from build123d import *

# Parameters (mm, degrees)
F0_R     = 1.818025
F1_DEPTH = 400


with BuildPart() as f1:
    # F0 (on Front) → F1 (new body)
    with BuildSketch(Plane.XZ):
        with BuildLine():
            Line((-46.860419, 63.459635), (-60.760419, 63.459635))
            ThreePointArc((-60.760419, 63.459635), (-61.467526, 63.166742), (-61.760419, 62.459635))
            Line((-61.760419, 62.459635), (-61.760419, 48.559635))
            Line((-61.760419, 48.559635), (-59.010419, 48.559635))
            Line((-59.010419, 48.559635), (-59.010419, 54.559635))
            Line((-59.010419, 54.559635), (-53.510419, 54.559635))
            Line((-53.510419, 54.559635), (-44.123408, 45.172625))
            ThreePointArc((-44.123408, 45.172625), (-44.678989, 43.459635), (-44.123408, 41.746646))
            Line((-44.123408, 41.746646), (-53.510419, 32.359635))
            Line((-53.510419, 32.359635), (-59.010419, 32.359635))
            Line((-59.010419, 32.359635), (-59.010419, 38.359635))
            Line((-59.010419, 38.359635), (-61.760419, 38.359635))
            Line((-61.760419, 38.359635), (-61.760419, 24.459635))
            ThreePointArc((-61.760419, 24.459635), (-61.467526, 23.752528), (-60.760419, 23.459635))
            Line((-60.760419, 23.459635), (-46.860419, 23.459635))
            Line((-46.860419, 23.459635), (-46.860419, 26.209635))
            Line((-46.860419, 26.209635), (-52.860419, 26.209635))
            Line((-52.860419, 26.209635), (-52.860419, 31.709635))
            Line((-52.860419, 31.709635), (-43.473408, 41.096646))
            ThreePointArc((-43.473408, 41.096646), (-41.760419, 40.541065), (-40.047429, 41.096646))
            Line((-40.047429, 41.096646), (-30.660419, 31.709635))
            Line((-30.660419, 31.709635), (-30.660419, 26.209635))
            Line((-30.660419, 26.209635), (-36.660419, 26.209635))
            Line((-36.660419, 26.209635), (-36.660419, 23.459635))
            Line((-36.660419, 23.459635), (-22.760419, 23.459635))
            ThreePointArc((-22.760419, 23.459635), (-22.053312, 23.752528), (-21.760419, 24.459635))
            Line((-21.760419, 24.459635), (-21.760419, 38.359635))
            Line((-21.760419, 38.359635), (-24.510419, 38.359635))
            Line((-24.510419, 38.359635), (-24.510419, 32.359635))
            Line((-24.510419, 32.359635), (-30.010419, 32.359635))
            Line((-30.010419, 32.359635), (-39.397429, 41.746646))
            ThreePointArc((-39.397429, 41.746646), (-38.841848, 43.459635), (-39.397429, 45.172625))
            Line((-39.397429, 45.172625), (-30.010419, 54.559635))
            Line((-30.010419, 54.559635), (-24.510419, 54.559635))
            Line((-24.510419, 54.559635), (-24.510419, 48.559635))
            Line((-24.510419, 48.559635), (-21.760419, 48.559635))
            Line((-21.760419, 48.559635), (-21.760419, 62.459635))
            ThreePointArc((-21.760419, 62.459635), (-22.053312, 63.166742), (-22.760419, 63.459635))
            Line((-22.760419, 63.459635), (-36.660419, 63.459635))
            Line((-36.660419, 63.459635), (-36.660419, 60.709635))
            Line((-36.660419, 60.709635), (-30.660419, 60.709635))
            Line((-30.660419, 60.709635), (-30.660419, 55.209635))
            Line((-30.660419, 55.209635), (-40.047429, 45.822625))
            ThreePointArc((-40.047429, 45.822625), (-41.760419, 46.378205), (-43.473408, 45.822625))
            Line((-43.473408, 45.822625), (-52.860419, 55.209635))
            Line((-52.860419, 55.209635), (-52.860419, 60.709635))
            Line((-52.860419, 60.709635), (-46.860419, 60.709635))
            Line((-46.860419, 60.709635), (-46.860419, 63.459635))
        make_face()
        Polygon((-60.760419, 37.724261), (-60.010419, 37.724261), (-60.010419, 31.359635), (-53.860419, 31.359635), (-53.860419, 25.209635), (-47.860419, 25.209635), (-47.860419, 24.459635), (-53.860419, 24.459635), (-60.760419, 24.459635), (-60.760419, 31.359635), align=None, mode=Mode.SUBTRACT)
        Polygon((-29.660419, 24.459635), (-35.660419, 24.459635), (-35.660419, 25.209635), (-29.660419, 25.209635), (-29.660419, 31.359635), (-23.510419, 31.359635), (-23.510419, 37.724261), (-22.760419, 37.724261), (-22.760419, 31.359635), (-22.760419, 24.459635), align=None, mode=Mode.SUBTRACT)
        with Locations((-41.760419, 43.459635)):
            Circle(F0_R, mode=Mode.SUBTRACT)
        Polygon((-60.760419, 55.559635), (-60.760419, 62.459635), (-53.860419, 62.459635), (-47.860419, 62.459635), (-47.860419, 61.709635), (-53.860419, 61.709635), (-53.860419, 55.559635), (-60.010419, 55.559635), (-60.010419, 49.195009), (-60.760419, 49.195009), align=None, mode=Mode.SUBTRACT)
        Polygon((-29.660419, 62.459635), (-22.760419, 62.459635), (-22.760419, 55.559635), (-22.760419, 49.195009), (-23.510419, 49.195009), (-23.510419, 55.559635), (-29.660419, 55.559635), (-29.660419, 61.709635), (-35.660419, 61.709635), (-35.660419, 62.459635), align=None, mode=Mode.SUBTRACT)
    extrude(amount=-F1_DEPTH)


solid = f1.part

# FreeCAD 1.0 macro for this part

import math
import FreeCAD as App
import Part
import Sketcher

V = App.Vector
Q = App.Units.Quantity

doc = App.newDocument("Part")
body = doc.addObject("PartDesign::Body", "Body")

sketch1 = doc.addObject("Sketcher::SketchObject", "Sketch")
body.addObject(sketch1)
sketch1.AttachmentSupport = (doc.XZ_Plane, [""])
sketch1.MapMode = "FlatFace"
sketch1.addGeometry([
    Part.LineSegment(V(-46.9, 63.5, 0), V(-60.8, 63.5, 0)),
    Part.ArcOfCircle(Part.Circle(V(-60.8, 62.5, 0), V(0, 0, 1), 1), math.radians(90), math.radians(180)),
    Part.LineSegment(V(-61.8, 62.5, 0), V(-61.8, 48.6, 0)),
    Part.LineSegment(V(-61.8, 48.6, 0), V(-59, 48.6, 0)),
    Part.LineSegment(V(-59, 48.6, 0), V(-59, 54.6, 0)),
    Part.LineSegment(V(-59, 54.6, 0), V(-53.5, 54.6, 0)),
    Part.LineSegment(V(-53.5, 54.6, 0), V(-44.1, 45.2, 0)),
    Part.ArcOfCircle(Part.Circle(V(-41.8, 43.5, 0), V(0, 0, 1), 2.9), math.radians(144), math.radians(216)),
    Part.LineSegment(V(-44.1, 41.7, 0), V(-53.5, 32.4, 0)),
    Part.LineSegment(V(-53.5, 32.4, 0), V(-59, 32.4, 0)),
    Part.LineSegment(V(-59, 32.4, 0), V(-59, 38.4, 0)),
    Part.LineSegment(V(-59, 38.4, 0), V(-61.8, 38.4, 0)),
    Part.LineSegment(V(-61.8, 38.4, 0), V(-61.8, 24.5, 0)),
    Part.ArcOfCircle(Part.Circle(V(-60.8, 24.5, 0), V(0, 0, 1), 1), math.radians(180), math.radians(270)),
    Part.LineSegment(V(-60.8, 23.5, 0), V(-46.9, 23.5, 0)),
    Part.LineSegment(V(-46.9, 23.5, 0), V(-46.9, 26.2, 0)),
    Part.LineSegment(V(-46.9, 26.2, 0), V(-52.9, 26.2, 0)),
    Part.LineSegment(V(-52.9, 26.2, 0), V(-52.9, 31.7, 0)),
    Part.LineSegment(V(-52.9, 31.7, 0), V(-43.5, 41.1, 0)),
    Part.ArcOfCircle(Part.Circle(V(-41.8, 43.5, 0), V(0, 0, 1), 2.9), math.radians(-126), math.radians(-54)),
    Part.LineSegment(V(-40, 41.1, 0), V(-30.7, 31.7, 0)),
    Part.LineSegment(V(-30.7, 31.7, 0), V(-30.7, 26.2, 0)),
    Part.LineSegment(V(-30.7, 26.2, 0), V(-36.7, 26.2, 0)),
    Part.LineSegment(V(-36.7, 26.2, 0), V(-36.7, 23.5, 0)),
    Part.LineSegment(V(-36.7, 23.5, 0), V(-22.8, 23.5, 0)),
    Part.ArcOfCircle(Part.Circle(V(-22.8, 24.5, 0), V(0, 0, 1), 1), math.radians(-90), math.radians(0)),
    Part.LineSegment(V(-21.8, 24.5, 0), V(-21.8, 38.4, 0)),
    Part.LineSegment(V(-21.8, 38.4, 0), V(-24.5, 38.4, 0)),
    Part.LineSegment(V(-24.5, 38.4, 0), V(-24.5, 32.4, 0)),
    Part.LineSegment(V(-24.5, 32.4, 0), V(-30, 32.4, 0)),
    Part.LineSegment(V(-30, 32.4, 0), V(-39.4, 41.7, 0)),
    Part.ArcOfCircle(Part.Circle(V(-41.8, 43.5, 0), V(0, 0, 1), 2.9), math.radians(-36), math.radians(36)),
    Part.LineSegment(V(-39.4, 45.2, 0), V(-30, 54.6, 0)),
    Part.LineSegment(V(-30, 54.6, 0), V(-24.5, 54.6, 0)),
    Part.LineSegment(V(-24.5, 54.6, 0), V(-24.5, 48.6, 0)),
    Part.LineSegment(V(-24.5, 48.6, 0), V(-21.8, 48.6, 0)),
    Part.LineSegment(V(-21.8, 48.6, 0), V(-21.8, 62.5, 0)),
    Part.ArcOfCircle(Part.Circle(V(-22.8, 62.5, 0), V(0, 0, 1), 1), math.radians(0), math.radians(90)),
    Part.LineSegment(V(-22.8, 63.5, 0), V(-36.7, 63.5, 0)),
    Part.LineSegment(V(-36.7, 63.5, 0), V(-36.7, 60.7, 0)),
    Part.LineSegment(V(-36.7, 60.7, 0), V(-30.7, 60.7, 0)),
    Part.LineSegment(V(-30.7, 60.7, 0), V(-30.7, 55.2, 0)),
    Part.LineSegment(V(-30.7, 55.2, 0), V(-40, 45.8, 0)),
    Part.ArcOfCircle(Part.Circle(V(-41.8, 43.5, 0), V(0, 0, 1), 2.9), math.radians(54), math.radians(126)),
    Part.LineSegment(V(-43.5, 45.8, 0), V(-52.9, 55.2, 0)),
    Part.LineSegment(V(-52.9, 55.2, 0), V(-52.9, 60.7, 0)),
    Part.LineSegment(V(-52.9, 60.7, 0), V(-46.9, 60.7, 0)),
    Part.LineSegment(V(-46.9, 60.7, 0), V(-46.9, 63.5, 0)),
    Part.LineSegment(V(-60.8, 24.5, 0), V(-60.8, 37.7, 0)),
    Part.LineSegment(V(-60.8, 37.7, 0), V(-60, 37.7, 0)),
    Part.LineSegment(V(-60, 37.7, 0), V(-60, 31.4, 0)),
    Part.LineSegment(V(-60, 31.4, 0), V(-53.9, 31.4, 0)),
    Part.LineSegment(V(-53.9, 31.4, 0), V(-53.9, 25.2, 0)),
    Part.LineSegment(V(-53.9, 25.2, 0), V(-47.9, 25.2, 0)),
    Part.LineSegment(V(-47.9, 25.2, 0), V(-47.9, 24.5, 0)),
    Part.LineSegment(V(-47.9, 24.5, 0), V(-60.8, 24.5, 0)),
    Part.LineSegment(V(-22.8, 24.5, 0), V(-35.7, 24.5, 0)),
    Part.LineSegment(V(-35.7, 24.5, 0), V(-35.7, 25.2, 0)),
    Part.LineSegment(V(-35.7, 25.2, 0), V(-29.7, 25.2, 0)),
    Part.LineSegment(V(-29.7, 25.2, 0), V(-29.7, 31.4, 0)),
    Part.LineSegment(V(-29.7, 31.4, 0), V(-23.5, 31.4, 0)),
    Part.LineSegment(V(-23.5, 31.4, 0), V(-23.5, 37.7, 0)),
    Part.LineSegment(V(-23.5, 37.7, 0), V(-22.8, 37.7, 0)),
    Part.LineSegment(V(-22.8, 37.7, 0), V(-22.8, 24.5, 0)),
    Part.LineSegment(V(-60.8, 49.2, 0), V(-60.8, 62.5, 0)),
    Part.LineSegment(V(-60.8, 62.5, 0), V(-47.9, 62.5, 0)),
    Part.LineSegment(V(-47.9, 62.5, 0), V(-47.9, 61.7, 0)),
    Part.LineSegment(V(-47.9, 61.7, 0), V(-53.9, 61.7, 0)),
    Part.LineSegment(V(-53.9, 61.7, 0), V(-53.9, 55.6, 0)),
    Part.LineSegment(V(-53.9, 55.6, 0), V(-60, 55.6, 0)),
    Part.LineSegment(V(-60, 55.6, 0), V(-60, 49.2, 0)),
    Part.LineSegment(V(-60, 49.2, 0), V(-60.8, 49.2, 0)),
    Part.Circle(V(-41.8, 43.5, 0), V(0, 0, 1), 1.8),
    Part.LineSegment(V(-35.7, 62.5, 0), V(-22.8, 62.5, 0)),
    Part.LineSegment(V(-22.8, 62.5, 0), V(-22.8, 49.2, 0)),
    Part.LineSegment(V(-22.8, 49.2, 0), V(-23.5, 49.2, 0)),
    Part.LineSegment(V(-23.5, 49.2, 0), V(-23.5, 55.6, 0)),
    Part.LineSegment(V(-23.5, 55.6, 0), V(-29.7, 55.6, 0)),
    Part.LineSegment(V(-29.7, 55.6, 0), V(-29.7, 61.7, 0)),
    Part.LineSegment(V(-29.7, 61.7, 0), V(-35.7, 61.7, 0)),
    Part.LineSegment(V(-35.7, 61.7, 0), V(-35.7, 62.5, 0)),
], False)
sketch1.addConstraint([
    Sketcher.Constraint("Tangent", 0, 2, 1, 1),
    Sketcher.Constraint("Tangent", 1, 2, 2, 1),
    Sketcher.Constraint("Coincident", 2, 2, 3, 1),
    Sketcher.Constraint("Coincident", 3, 2, 4, 1),
    Sketcher.Constraint("Coincident", 4, 2, 5, 1),
    Sketcher.Constraint("Coincident", 5, 2, 6, 1),
    Sketcher.Constraint("Coincident", 6, 2, 7, 1),
    Sketcher.Constraint("Coincident", 7, 2, 8, 1),
    Sketcher.Constraint("Coincident", 8, 2, 9, 1),
    Sketcher.Constraint("Coincident", 9, 2, 10, 1),
    Sketcher.Constraint("Coincident", 10, 2, 11, 1),
    Sketcher.Constraint("Coincident", 11, 2, 12, 1),
    Sketcher.Constraint("Tangent", 12, 2, 13, 1),
    Sketcher.Constraint("Tangent", 13, 2, 14, 1),
    Sketcher.Constraint("Coincident", 14, 2, 15, 1),
    Sketcher.Constraint("Coincident", 15, 2, 16, 1),
    Sketcher.Constraint("Coincident", 16, 2, 17, 1),
    Sketcher.Constraint("Coincident", 17, 2, 18, 1),
    Sketcher.Constraint("Coincident", 18, 2, 19, 1),
    Sketcher.Constraint("Coincident", 19, 2, 20, 1),
    Sketcher.Constraint("Coincident", 20, 2, 21, 1),
    Sketcher.Constraint("Coincident", 21, 2, 22, 1),
    Sketcher.Constraint("Coincident", 22, 2, 23, 1),
    Sketcher.Constraint("Coincident", 23, 2, 24, 1),
    Sketcher.Constraint("Tangent", 24, 2, 25, 1),
    Sketcher.Constraint("Tangent", 25, 2, 26, 1),
    Sketcher.Constraint("Coincident", 26, 2, 27, 1),
    Sketcher.Constraint("Coincident", 27, 2, 28, 1),
    Sketcher.Constraint("Coincident", 28, 2, 29, 1),
    Sketcher.Constraint("Coincident", 29, 2, 30, 1),
    Sketcher.Constraint("Coincident", 30, 2, 31, 1),
    Sketcher.Constraint("Coincident", 31, 2, 32, 1),
    Sketcher.Constraint("Coincident", 32, 2, 33, 1),
    Sketcher.Constraint("Coincident", 33, 2, 34, 1),
    Sketcher.Constraint("Coincident", 34, 2, 35, 1),
    Sketcher.Constraint("Coincident", 35, 2, 36, 1),
    Sketcher.Constraint("Tangent", 36, 2, 37, 1),
    Sketcher.Constraint("Tangent", 37, 2, 38, 1),
    Sketcher.Constraint("Coincident", 38, 2, 39, 1),
    Sketcher.Constraint("Coincident", 39, 2, 40, 1),
    Sketcher.Constraint("Coincident", 40, 2, 41, 1),
    Sketcher.Constraint("Coincident", 41, 2, 42, 1),
    Sketcher.Constraint("Coincident", 42, 2, 43, 1),
    Sketcher.Constraint("Coincident", 43, 2, 44, 1),
    Sketcher.Constraint("Coincident", 44, 2, 45, 1),
    Sketcher.Constraint("Coincident", 45, 2, 46, 1),
    Sketcher.Constraint("Coincident", 46, 2, 47, 1),
    Sketcher.Constraint("Coincident", 47, 2, 0, 1),
    Sketcher.Constraint("Coincident", 48, 2, 49, 1),
    Sketcher.Constraint("Coincident", 49, 2, 50, 1),
    Sketcher.Constraint("Coincident", 50, 2, 51, 1),
    Sketcher.Constraint("Coincident", 51, 2, 52, 1),
    Sketcher.Constraint("Coincident", 52, 2, 53, 1),
    Sketcher.Constraint("Coincident", 53, 2, 54, 1),
    Sketcher.Constraint("Coincident", 54, 2, 55, 1),
    Sketcher.Constraint("Coincident", 55, 2, 48, 1),
    Sketcher.Constraint("Coincident", 56, 2, 57, 1),
    Sketcher.Constraint("Coincident", 57, 2, 58, 1),
    Sketcher.Constraint("Coincident", 58, 2, 59, 1),
    Sketcher.Constraint("Coincident", 59, 2, 60, 1),
    Sketcher.Constraint("Coincident", 60, 2, 61, 1),
    Sketcher.Constraint("Coincident", 61, 2, 62, 1),
    Sketcher.Constraint("Coincident", 62, 2, 63, 1),
    Sketcher.Constraint("Coincident", 63, 2, 56, 1),
    Sketcher.Constraint("Coincident", 64, 2, 65, 1),
    Sketcher.Constraint("Coincident", 65, 2, 66, 1),
    Sketcher.Constraint("Coincident", 66, 2, 67, 1),
    Sketcher.Constraint("Coincident", 67, 2, 68, 1),
    Sketcher.Constraint("Coincident", 68, 2, 69, 1),
    Sketcher.Constraint("Coincident", 69, 2, 70, 1),
    Sketcher.Constraint("Coincident", 70, 2, 71, 1),
    Sketcher.Constraint("Coincident", 71, 2, 64, 1),
    Sketcher.Constraint("Coincident", 73, 2, 74, 1),
    Sketcher.Constraint("Coincident", 74, 2, 75, 1),
    Sketcher.Constraint("Coincident", 75, 2, 76, 1),
    Sketcher.Constraint("Coincident", 76, 2, 77, 1),
    Sketcher.Constraint("Coincident", 77, 2, 78, 1),
    Sketcher.Constraint("Coincident", 78, 2, 79, 1),
    Sketcher.Constraint("Coincident", 79, 2, 80, 1),
    Sketcher.Constraint("Coincident", 80, 2, 73, 1),
    Sketcher.Constraint("Horizontal", 0),
    Sketcher.Constraint("Vertical", 2),
    Sketcher.Constraint("Horizontal", 3),
    Sketcher.Constraint("Vertical", 4),
    Sketcher.Constraint("Horizontal", 5),
    Sketcher.Constraint("Horizontal", 9),
    Sketcher.Constraint("Vertical", 10),
    Sketcher.Constraint("Horizontal", 11),
    Sketcher.Constraint("Vertical", 12),
    Sketcher.Constraint("Horizontal", 14),
    Sketcher.Constraint("Vertical", 15),
    Sketcher.Constraint("Horizontal", 16),
    Sketcher.Constraint("Vertical", 17),
    Sketcher.Constraint("Vertical", 21),
    Sketcher.Constraint("Horizontal", 22),
    Sketcher.Constraint("Vertical", 23),
    Sketcher.Constraint("Horizontal", 24),
    Sketcher.Constraint("Vertical", 26),
    Sketcher.Constraint("Horizontal", 27),
    Sketcher.Constraint("Vertical", 28),
    Sketcher.Constraint("Horizontal", 29),
    Sketcher.Constraint("Horizontal", 33),
    Sketcher.Constraint("Vertical", 34),
    Sketcher.Constraint("Horizontal", 35),
    Sketcher.Constraint("Vertical", 36),
    Sketcher.Constraint("Horizontal", 38),
    Sketcher.Constraint("Vertical", 39),
    Sketcher.Constraint("Horizontal", 40),
    Sketcher.Constraint("Vertical", 41),
    Sketcher.Constraint("Vertical", 45),
    Sketcher.Constraint("Horizontal", 46),
    Sketcher.Constraint("Vertical", 47),
    Sketcher.Constraint("Vertical", 48),
    Sketcher.Constraint("Horizontal", 49),
    Sketcher.Constraint("Vertical", 50),
    Sketcher.Constraint("Horizontal", 51),
    Sketcher.Constraint("Vertical", 52),
    Sketcher.Constraint("Horizontal", 53),
    Sketcher.Constraint("Vertical", 54),
    Sketcher.Constraint("Horizontal", 55),
    Sketcher.Constraint("Horizontal", 56),
    Sketcher.Constraint("Vertical", 57),
    Sketcher.Constraint("Horizontal", 58),
    Sketcher.Constraint("Vertical", 59),
    Sketcher.Constraint("Horizontal", 60),
    Sketcher.Constraint("Vertical", 61),
    Sketcher.Constraint("Horizontal", 62),
    Sketcher.Constraint("Vertical", 63),
    Sketcher.Constraint("Vertical", 64),
    Sketcher.Constraint("Horizontal", 65),
    Sketcher.Constraint("Vertical", 66),
    Sketcher.Constraint("Horizontal", 67),
    Sketcher.Constraint("Vertical", 68),
    Sketcher.Constraint("Horizontal", 69),
    Sketcher.Constraint("Vertical", 70),
    Sketcher.Constraint("Horizontal", 71),
    Sketcher.Constraint("Horizontal", 73),
    Sketcher.Constraint("Vertical", 74),
    Sketcher.Constraint("Horizontal", 75),
    Sketcher.Constraint("Vertical", 76),
    Sketcher.Constraint("Horizontal", 77),
    Sketcher.Constraint("Vertical", 78),
    Sketcher.Constraint("Horizontal", 79),
    Sketcher.Constraint("Vertical", 80),
    Sketcher.Constraint("Coincident", 19, 3, 7, 3),
    Sketcher.Constraint("Coincident", 31, 3, 7, 3),
    Sketcher.Constraint("Coincident", 43, 3, 7, 3),
    Sketcher.Constraint("Coincident", 72, 3, 7, 3),
    Sketcher.Constraint("Coincident", 55, 2, 13, 3),
    Sketcher.Constraint("Coincident", 63, 2, 25, 3),
    Sketcher.Constraint("Coincident", 64, 2, 1, 3),
    Sketcher.Constraint("Coincident", 73, 2, 37, 3),
    Sketcher.Constraint("Equal", 1, 13),
    Sketcher.Constraint("Equal", 7, 19),
    Sketcher.Constraint("Equal", 13, 25),
    Sketcher.Constraint("Equal", 19, 31),
    Sketcher.Constraint("Equal", 25, 37),
    Sketcher.Constraint("Perpendicular", 6, 8),
    Sketcher.Constraint("Parallel", 8, 18),
    Sketcher.Constraint("Perpendicular", 18, 20),
    Sketcher.Constraint("Parallel", 20, 30),
    Sketcher.Constraint("Perpendicular", 30, 32),
    Sketcher.Constraint("Parallel", 32, 42),
    Sketcher.Constraint("Perpendicular", 42, 44),
    Sketcher.Constraint("Horizontal", 13, 3, 25, 3),
    Sketcher.Constraint("Horizontal", 1, 3, 37, 3),
    Sketcher.Constraint("Horizontal", 18, 2, 19, 2),
    Sketcher.Constraint("Horizontal", 17, 2, 20, 2),
    Sketcher.Constraint("Horizontal", 16, 2, 21, 2),
    Sketcher.Constraint("Horizontal", 11, 2, 26, 2),
    Sketcher.Constraint("Horizontal", 9, 2, 28, 2),
    Sketcher.Constraint("Horizontal", 7, 2, 30, 2),
    Sketcher.Constraint("Horizontal", 6, 2, 31, 2),
    Sketcher.Constraint("Horizontal", 5, 2, 32, 2),
    Sketcher.Constraint("Horizontal", 3, 2, 34, 2),
    Sketcher.Constraint("Horizontal", 42, 2, 43, 2),
    Sketcher.Constraint("Horizontal", 41, 2, 44, 2),
    Sketcher.Constraint("Horizontal", 40, 2, 45, 2),
    Sketcher.Constraint("Horizontal", 53, 2, 57, 2),
    Sketcher.Constraint("Horizontal", 51, 2, 59, 2),
    Sketcher.Constraint("Horizontal", 49, 2, 61, 2),
    Sketcher.Constraint("Horizontal", 71, 2, 74, 2),
    Sketcher.Constraint("Horizontal", 69, 2, 76, 2),
    Sketcher.Constraint("Horizontal", 67, 2, 78, 2),
    Sketcher.Constraint("Vertical", 1, 3, 13, 3),
    Sketcher.Constraint("Vertical", 25, 3, 37, 3),
    Sketcher.Constraint("Vertical", 6, 2, 7, 2),
    Sketcher.Constraint("Vertical", 5, 2, 8, 2),
    Sketcher.Constraint("Vertical", 4, 2, 9, 2),
    Sketcher.Constraint("Vertical", 29, 2, 32, 2),
    Sketcher.Constraint("Vertical", 28, 2, 33, 2),
    Sketcher.Constraint("Vertical", 23, 2, 38, 2),
    Sketcher.Constraint("Vertical", 21, 2, 40, 2),
    Sketcher.Constraint("Vertical", 19, 2, 42, 2),
    Sketcher.Constraint("Vertical", 15, 2, 46, 2),
    Sketcher.Constraint("Vertical", 54, 2, 65, 2),
    Sketcher.Constraint("Vertical", 52, 2, 67, 2),
    Sketcher.Constraint("Vertical", 50, 2, 69, 2),
    Sketcher.Constraint("Vertical", 61, 2, 75, 2),
    Sketcher.Constraint("Vertical", 59, 2, 77, 2),
    Sketcher.Constraint("Vertical", 57, 2, 79, 2),
    Sketcher.Constraint("Equal", 16, 22),
    Sketcher.Constraint("Equal", 14, 24),
    Sketcher.Constraint("Equal", 11, 27),
    Sketcher.Constraint("Equal", 46, 53),
    Sketcher.Constraint("Equal", 55, 56),
    Sketcher.Constraint("Equal", 53, 58),
    Sketcher.Constraint("Equal", 51, 60),
    Sketcher.Constraint("Equal", 38, 2),
    Sketcher.Constraint("Equal", 79, 4),
    Sketcher.Constraint("Equal", 4, 10),
    Sketcher.Constraint("Equal", 2, 12),
    Sketcher.Constraint("Equal", 35, 15),
    Sketcher.Constraint("Equal", 33, 17),
    Sketcher.Constraint("Equal", 23, 39),
    Sketcher.Constraint("Equal", 21, 41),
    Sketcher.Constraint("Equal", 77, 52),
    Sketcher.Constraint("Equal", 75, 54),
    Sketcher.Constraint("Equal", 63, 64),
    Sketcher.Constraint("Equal", 57, 66),
    Sketcher.Constraint("Equal", 59, 68),
    Sketcher.Constraint("Equal", 8, 18),
    Sketcher.Constraint("Radius", 1, Q("0.999999 mm")),
    Sketcher.Constraint("DistanceX", 16, 2, 16, 1, Q("6 mm")),
    Sketcher.Constraint("DistanceX", 0, 2, 0, 1, Q("13.9 mm")),
    Sketcher.Constraint("DistanceX", 5, 1, 5, 2, Q("5.5 mm")),
    Sketcher.Constraint("DistanceX", 55, 2, 55, 1, Q("12.9 mm")),
    Sketcher.Constraint("DistanceX", 3, 1, 3, 2, Q("2.75 mm")),
    Sketcher.Constraint("DistanceX", 49, 1, 49, 2, Q("0.75 mm")),
    Sketcher.Constraint("Diameter", 72, Q("3.63605 mm")),
    Sketcher.Constraint("Radius", 7, Q("2.918569 mm")),
    Sketcher.Constraint("Distance", 8, Q("13.275238 mm")),
    Sketcher.Constraint("DistanceY", 48, 1, 48, 2, Q("13.264626 mm")),
    Sketcher.Constraint("DistanceX", 1, 3, -1, 1, Q("60.76042 mm")),
    Sketcher.Constraint("DistanceY", -1, 1, 43, 3, Q("43.459631 mm")),
])
pad1 = doc.addObject("PartDesign::Pad", "Pad")
body.addObject(pad1)
pad1.Profile = sketch1
pad1.Length = 400
pad1.Reversed = True

doc.recompute()
